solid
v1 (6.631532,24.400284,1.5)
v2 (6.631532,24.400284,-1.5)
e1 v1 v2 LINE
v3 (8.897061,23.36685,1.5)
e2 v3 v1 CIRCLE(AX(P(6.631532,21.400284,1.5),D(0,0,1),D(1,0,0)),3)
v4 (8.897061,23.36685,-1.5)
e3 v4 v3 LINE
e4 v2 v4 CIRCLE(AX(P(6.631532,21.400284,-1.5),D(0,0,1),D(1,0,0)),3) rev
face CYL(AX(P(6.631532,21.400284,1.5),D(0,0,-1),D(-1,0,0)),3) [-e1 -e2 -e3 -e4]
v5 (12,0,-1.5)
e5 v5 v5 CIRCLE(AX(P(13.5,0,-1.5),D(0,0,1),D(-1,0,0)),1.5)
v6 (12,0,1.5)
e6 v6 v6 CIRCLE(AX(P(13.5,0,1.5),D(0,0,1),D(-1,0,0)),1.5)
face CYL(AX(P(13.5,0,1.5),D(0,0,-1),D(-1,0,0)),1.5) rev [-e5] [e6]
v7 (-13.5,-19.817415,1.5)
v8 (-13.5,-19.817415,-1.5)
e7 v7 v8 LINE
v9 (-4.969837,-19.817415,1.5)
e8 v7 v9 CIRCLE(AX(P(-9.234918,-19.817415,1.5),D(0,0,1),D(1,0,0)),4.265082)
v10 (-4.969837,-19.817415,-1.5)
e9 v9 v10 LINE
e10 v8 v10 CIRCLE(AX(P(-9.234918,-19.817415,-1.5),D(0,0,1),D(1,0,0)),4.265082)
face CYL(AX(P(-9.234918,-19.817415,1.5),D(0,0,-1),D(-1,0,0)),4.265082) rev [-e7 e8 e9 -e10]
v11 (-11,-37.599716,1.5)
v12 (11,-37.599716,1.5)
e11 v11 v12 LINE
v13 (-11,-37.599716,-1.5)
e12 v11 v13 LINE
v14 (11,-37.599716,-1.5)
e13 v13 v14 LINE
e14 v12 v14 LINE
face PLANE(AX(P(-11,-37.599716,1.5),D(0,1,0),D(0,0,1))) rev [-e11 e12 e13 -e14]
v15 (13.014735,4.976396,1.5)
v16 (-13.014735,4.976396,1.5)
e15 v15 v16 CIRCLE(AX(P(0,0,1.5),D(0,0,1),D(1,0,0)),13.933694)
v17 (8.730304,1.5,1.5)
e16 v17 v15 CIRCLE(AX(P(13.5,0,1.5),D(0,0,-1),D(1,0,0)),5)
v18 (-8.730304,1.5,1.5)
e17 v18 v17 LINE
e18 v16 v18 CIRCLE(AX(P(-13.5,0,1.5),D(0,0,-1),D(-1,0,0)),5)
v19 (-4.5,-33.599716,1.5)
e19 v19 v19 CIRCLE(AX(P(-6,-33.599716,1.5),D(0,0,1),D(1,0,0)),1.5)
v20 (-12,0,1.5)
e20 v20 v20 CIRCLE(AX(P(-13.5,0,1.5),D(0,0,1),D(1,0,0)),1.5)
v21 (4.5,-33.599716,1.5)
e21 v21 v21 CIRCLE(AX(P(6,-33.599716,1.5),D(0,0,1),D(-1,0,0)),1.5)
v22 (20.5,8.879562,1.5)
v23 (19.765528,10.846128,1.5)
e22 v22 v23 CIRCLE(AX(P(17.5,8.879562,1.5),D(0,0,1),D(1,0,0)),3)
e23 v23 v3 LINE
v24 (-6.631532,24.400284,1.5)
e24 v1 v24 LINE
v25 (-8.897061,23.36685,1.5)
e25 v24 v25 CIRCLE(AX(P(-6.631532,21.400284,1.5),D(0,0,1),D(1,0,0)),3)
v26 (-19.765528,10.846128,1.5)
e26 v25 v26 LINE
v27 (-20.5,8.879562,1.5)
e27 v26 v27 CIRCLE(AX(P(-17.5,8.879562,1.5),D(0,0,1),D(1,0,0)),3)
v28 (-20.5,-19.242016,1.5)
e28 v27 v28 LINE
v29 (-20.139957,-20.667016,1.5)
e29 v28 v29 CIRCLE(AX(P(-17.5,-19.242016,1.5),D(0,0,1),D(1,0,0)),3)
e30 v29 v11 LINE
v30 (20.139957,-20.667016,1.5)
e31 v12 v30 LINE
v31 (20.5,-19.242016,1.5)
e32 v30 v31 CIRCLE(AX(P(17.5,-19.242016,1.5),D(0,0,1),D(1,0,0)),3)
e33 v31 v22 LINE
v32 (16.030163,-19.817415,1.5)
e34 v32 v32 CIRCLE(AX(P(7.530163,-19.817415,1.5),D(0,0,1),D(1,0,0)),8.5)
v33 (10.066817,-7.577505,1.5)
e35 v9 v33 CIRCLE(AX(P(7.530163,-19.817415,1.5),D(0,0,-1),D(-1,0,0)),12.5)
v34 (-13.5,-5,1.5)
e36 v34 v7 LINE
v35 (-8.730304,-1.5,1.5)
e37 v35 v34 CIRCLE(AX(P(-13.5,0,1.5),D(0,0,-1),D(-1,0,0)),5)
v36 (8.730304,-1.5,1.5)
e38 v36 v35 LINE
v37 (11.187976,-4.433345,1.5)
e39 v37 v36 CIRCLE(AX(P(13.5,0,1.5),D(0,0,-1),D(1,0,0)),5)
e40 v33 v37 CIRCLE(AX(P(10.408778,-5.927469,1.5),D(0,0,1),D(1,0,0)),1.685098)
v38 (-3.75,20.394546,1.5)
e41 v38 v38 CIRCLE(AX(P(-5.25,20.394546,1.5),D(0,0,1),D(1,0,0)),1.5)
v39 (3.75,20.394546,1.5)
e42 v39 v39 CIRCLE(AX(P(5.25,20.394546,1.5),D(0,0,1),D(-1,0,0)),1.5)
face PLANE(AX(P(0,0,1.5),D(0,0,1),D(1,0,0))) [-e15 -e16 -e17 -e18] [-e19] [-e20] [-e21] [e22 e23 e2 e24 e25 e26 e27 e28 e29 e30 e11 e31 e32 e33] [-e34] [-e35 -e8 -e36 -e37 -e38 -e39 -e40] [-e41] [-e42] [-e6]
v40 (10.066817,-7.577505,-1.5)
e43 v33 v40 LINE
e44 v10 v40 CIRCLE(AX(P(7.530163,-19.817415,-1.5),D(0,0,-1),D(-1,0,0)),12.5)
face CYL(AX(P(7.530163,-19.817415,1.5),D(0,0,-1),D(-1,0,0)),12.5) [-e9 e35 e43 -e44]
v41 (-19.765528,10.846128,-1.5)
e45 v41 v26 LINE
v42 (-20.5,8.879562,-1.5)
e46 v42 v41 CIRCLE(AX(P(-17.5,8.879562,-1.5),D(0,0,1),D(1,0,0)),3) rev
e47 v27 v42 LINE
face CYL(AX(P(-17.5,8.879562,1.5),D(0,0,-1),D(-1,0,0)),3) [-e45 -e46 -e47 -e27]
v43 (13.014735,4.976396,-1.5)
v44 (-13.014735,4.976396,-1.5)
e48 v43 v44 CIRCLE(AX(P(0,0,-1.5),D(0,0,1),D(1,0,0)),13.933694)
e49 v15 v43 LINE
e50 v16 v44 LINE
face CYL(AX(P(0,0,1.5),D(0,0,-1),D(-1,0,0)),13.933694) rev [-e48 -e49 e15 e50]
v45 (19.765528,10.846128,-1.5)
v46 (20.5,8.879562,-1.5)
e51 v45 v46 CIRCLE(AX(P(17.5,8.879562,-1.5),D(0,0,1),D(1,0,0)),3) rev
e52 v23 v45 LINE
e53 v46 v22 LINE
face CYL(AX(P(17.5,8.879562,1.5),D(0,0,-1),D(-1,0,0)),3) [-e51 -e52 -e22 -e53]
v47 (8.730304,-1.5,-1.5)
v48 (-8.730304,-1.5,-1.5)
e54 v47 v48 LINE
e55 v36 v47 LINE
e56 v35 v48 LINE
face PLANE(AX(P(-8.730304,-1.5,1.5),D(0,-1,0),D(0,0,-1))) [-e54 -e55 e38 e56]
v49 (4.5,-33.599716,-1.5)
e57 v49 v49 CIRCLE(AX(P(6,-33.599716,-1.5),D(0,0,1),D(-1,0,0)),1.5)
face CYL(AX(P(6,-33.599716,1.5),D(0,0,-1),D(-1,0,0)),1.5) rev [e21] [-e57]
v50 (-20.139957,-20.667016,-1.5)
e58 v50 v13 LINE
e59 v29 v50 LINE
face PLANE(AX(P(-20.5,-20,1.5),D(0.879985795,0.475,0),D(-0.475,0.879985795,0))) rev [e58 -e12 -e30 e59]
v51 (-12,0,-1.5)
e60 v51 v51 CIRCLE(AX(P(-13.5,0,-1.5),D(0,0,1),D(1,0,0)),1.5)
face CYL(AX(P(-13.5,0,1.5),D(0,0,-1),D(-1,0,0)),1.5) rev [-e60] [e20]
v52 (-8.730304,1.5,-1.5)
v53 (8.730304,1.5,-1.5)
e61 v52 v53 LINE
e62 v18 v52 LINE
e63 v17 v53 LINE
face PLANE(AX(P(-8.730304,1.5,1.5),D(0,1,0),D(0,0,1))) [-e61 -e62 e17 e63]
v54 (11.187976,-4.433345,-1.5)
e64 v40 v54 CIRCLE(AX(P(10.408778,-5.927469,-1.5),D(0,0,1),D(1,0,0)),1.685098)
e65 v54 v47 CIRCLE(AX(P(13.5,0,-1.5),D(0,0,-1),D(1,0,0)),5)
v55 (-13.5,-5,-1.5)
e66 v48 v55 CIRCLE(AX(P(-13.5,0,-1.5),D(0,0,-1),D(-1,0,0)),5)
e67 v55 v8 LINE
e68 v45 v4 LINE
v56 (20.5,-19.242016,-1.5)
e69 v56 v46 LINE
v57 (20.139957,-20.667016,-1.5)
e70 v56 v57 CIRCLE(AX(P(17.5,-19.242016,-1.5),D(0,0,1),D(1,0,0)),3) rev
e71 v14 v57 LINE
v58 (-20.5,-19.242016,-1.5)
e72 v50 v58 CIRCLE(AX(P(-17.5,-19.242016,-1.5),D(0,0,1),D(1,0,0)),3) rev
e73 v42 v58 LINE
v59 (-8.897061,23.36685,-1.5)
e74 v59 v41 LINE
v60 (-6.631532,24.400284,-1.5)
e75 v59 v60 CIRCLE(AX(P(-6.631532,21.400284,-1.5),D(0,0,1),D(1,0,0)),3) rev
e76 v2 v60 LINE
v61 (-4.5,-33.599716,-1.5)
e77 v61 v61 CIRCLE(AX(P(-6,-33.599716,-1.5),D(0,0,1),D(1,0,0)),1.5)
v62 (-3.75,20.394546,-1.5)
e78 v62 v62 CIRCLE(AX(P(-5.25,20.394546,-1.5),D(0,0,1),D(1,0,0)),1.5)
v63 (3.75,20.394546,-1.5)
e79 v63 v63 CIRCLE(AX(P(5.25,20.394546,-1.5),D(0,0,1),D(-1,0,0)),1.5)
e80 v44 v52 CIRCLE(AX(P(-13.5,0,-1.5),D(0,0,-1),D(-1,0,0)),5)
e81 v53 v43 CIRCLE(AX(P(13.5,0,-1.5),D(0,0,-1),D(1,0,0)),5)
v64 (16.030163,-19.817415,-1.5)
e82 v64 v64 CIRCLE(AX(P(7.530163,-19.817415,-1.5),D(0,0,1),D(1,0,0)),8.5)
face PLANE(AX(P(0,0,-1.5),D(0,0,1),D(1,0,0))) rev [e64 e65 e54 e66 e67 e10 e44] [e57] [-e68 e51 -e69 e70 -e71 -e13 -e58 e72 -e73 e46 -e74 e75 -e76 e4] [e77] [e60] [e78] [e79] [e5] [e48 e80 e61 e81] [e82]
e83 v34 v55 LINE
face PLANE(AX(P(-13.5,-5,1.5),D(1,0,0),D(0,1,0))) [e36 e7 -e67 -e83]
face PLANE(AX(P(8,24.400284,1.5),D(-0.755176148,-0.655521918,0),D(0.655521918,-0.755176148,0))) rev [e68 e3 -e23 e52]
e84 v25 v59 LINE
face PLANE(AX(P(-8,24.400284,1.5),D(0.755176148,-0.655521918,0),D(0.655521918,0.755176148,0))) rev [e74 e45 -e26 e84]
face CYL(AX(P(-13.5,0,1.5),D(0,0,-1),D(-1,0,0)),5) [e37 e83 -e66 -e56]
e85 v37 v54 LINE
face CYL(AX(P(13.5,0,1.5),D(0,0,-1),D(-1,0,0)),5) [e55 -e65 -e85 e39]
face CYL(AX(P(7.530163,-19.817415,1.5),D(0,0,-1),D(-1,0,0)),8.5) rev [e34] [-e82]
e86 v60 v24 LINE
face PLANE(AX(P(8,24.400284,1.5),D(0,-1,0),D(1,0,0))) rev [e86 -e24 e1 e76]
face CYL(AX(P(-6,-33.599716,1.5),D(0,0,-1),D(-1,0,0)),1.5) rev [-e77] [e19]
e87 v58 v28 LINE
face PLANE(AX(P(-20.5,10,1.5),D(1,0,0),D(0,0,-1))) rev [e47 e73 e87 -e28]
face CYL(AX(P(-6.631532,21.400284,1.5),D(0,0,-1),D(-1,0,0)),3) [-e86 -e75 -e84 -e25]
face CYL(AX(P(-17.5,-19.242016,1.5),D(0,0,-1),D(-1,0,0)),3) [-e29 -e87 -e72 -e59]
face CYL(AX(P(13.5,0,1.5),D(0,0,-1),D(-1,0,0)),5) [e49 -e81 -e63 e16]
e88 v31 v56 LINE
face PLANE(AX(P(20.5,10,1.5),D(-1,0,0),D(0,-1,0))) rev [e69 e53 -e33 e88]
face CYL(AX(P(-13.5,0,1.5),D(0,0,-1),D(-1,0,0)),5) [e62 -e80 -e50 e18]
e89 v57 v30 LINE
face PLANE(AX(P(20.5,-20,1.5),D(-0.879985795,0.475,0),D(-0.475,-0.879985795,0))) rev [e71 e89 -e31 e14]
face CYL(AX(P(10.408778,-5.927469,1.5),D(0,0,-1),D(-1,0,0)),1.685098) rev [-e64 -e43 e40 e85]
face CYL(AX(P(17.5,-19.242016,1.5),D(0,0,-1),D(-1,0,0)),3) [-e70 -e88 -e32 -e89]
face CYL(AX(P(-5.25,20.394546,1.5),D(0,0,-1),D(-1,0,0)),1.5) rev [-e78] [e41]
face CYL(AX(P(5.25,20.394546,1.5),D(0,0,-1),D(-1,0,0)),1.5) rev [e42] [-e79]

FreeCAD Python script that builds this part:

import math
import FreeCAD as App
import Part
import Sketcher

V = App.Vector
Q = App.Units.Quantity


def edges_at(feature, points):
    """Names of the edges that pass closest to the given points."""
    edges = feature.Shape.Edges
    near = lambda p: min(range(len(edges)), key=lambda i: edges[i].distToShape(Part.Vertex(*p))[0])
    return sorted({f"Edge{near(p) + 1}" for p in points})

doc = App.newDocument("Part")
body = doc.addObject("PartDesign::Body", "Body")

sketch1 = doc.addObject("Sketcher::SketchObject", "Sketch")
body.addObject(sketch1)
sketch1.AttachmentSupport = (doc.XY_Plane, [""])
sketch1.MapMode = "FlatFace"
sketch1.addGeometry([
    Part.LineSegment(V(8, 24.4, 0), V(-8, 24.4, 0)),
    Part.LineSegment(V(-8, 24.4, 0), V(-20.5, 10, 0)),
    Part.LineSegment(V(-20.5, 10, 0), V(-20.5, -20, 0)),
    Part.LineSegment(V(-20.5, -20, 0), V(-11, -37.6, 0)),
    Part.LineSegment(V(-11, -37.6, 0), V(11, -37.6, 0)),
    Part.LineSegment(V(11, -37.6, 0), V(20.5, -20, 0)),
    Part.LineSegment(V(20.5, -20, 0), V(20.5, 10, 0)),
    Part.LineSegment(V(20.5, 10, 0), V(8, 24.4, 0)),
    Part.Circle(V(-6, -33.6, 0), V(0, 0, 1), 1.5),
    Part.LineSegment(V(-13.5, -19.8, 0), V(-13.5, -5, 0)),
    Part.ArcOfCircle(Part.Circle(V(-13.5, 0, 0), V(0, 0, 1), 5), math.radians(-90), math.radians(-17)),
    Part.LineSegment(V(-8.7, -1.5, 0), V(8.7, -1.5, 0)),
    Part.ArcOfCircle(Part.Circle(V(13.5, 0, 0), V(0, 0, 1), 5), math.radians(-163), math.radians(-118)),
    Part.ArcOfCircle(Part.Circle(V(10.4, -5.9, 0), V(0, 0, 1), 1.7), math.radians(-102), math.radians(62)),
    Part.ArcOfCircle(Part.Circle(V(7.5, -19.8, 0), V(0, 0, 1), 12.5), math.radians(78), math.radians(180)),
    Part.ArcOfCircle(Part.Circle(V(-9.2, -19.8, 0), V(0, 0, 1), 4.3), math.radians(180), math.radians(360)),
    Part.Circle(V(6, -33.6, 0), V(0, 0, 1), 1.5),
    Part.Circle(V(7.5, -19.8, 0), V(0, 0, 1), 8.5),
    Part.Circle(V(-13.5, 0, 0), V(0, 0, 1), 1.5),
    Part.LineSegment(V(8.7, 1.5, 0), V(-8.7, 1.5, 0)),
    Part.ArcOfCircle(Part.Circle(V(-13.5, 0, 0), V(0, 0, 1), 5), math.radians(17), math.radians(84)),
    Part.ArcOfCircle(Part.Circle(V(0, 0, 0), V(0, 0, 1), 13.9), math.radians(21), math.radians(159)),
    Part.ArcOfCircle(Part.Circle(V(13.5, 0, 0), V(0, 0, 1), 5), math.radians(96), math.radians(163)),
    Part.Circle(V(-5.2, 20.4, 0), V(0, 0, 1), 1.5),
    Part.Circle(V(13.5, 0, 0), V(0, 0, 1), 1.5),
    Part.Circle(V(5.2, 20.4, 0), V(0, 0, 1), 1.5),
], False)
sketch1.addConstraint([
    Sketcher.Constraint("Coincident", 0, 2, 1, 1),
    Sketcher.Constraint("Coincident", 1, 2, 2, 1),
    Sketcher.Constraint("Coincident", 2, 2, 3, 1),
    Sketcher.Constraint("Coincident", 3, 2, 4, 1),
    Sketcher.Constraint("Coincident", 4, 2, 5, 1),
    Sketcher.Constraint("Coincident", 5, 2, 6, 1),
    Sketcher.Constraint("Coincident", 6, 2, 7, 1),
    Sketcher.Constraint("Coincident", 7, 2, 0, 1),
    Sketcher.Constraint("Coincident", 9, 2, 10, 1),
    Sketcher.Constraint("Coincident", 10, 2, 11, 1),
    Sketcher.Constraint("Coincident", 11, 2, 12, 1),
    Sketcher.Constraint("Tangent", 12, 2, 13, 2),
    Sketcher.Constraint("Tangent", 13, 1, 14, 1),
    Sketcher.Constraint("Tangent", 14, 2, 15, 2),
    Sketcher.Constraint("Tangent", 15, 1, 9, 1),
    Sketcher.Constraint("Coincident", 19, 2, 20, 1),
    Sketcher.Constraint("Coincident", 20, 2, 21, 2),
    Sketcher.Constraint("Coincident", 21, 1, 22, 1),
    Sketcher.Constraint("Coincident", 22, 2, 19, 1),
    Sketcher.Constraint("Horizontal", 0),
    Sketcher.Constraint("Vertical", 2),
    Sketcher.Constraint("Horizontal", 4),
    Sketcher.Constraint("Vertical", 6),
    Sketcher.Constraint("Vertical", 9),
    Sketcher.Constraint("Horizontal", 11),
    Sketcher.Constraint("Horizontal", 19),
    Sketcher.Constraint("Coincident", 21, 3, -1, 1),
    Sketcher.Constraint("Coincident", 17, 3, 14, 3),
    Sketcher.Constraint("Coincident", 18, 3, 10, 3),
    Sketcher.Constraint("Coincident", 20, 3, 10, 3),
    Sketcher.Constraint("Coincident", 22, 3, 12, 3),
    Sketcher.Constraint("Coincident", 24, 3, 12, 3),
    Sketcher.Constraint("Equal", 10, 12),
    Sketcher.Constraint("Equal", 8, 16),
    Sketcher.Constraint("Equal", 16, 18),
    Sketcher.Constraint("Equal", 12, 20),
    Sketcher.Constraint("Equal", 20, 22),
    Sketcher.Constraint("Equal", 18, 23),
    Sketcher.Constraint("Equal", 23, 24),
    Sketcher.Constraint("Equal", 24, 25),
    Sketcher.Constraint("Symmetric", 10, 3, 12, 3, -1, 1),
    Sketcher.Constraint("Symmetric", 8, 3, 16, 3, -2),
    Sketcher.Constraint("Symmetric", 23, 3, 25, 3, -2),
    Sketcher.Constraint("Symmetric", 2, 2, 5, 2, -2),
    Sketcher.Constraint("Symmetric", 10, 2, 19, 2, -1),
    Sketcher.Constraint("Horizontal", 14, 3, 15, 3),
    Sketcher.Constraint("Horizontal", 1, 2, 6, 2),
    Sketcher.Constraint("Vertical", 20, 3, 9, 2),
    Sketcher.Constraint("Equal", 3, 5),
    Sketcher.Constraint("Equal", 1, 7),
    Sketcher.Constraint("Diameter", 8, Q("3 mm")),
    Sketcher.Constraint("Diameter", 17, Q("17 mm")),
    Sketcher.Constraint("Radius", 10, Q("5 mm")),
    Sketcher.Constraint("Radius", 14, Q("12.5 mm")),
    Sketcher.Constraint("DistanceX", 0, 2, 0, 1, Q("16 mm")),
    Sketcher.Constraint("DistanceX", 4, 1, 4, 2, Q("22 mm")),
    Sketcher.Constraint("DistanceY", 2, 2, 2, 1, Q("30 mm")),
    Sketcher.Constraint("Distance", 3, Q("20 mm")),
    Sketcher.Constraint("DistanceX", 8, 3, -1, 1, Q("6 mm")),
    Sketcher.Constraint("DistanceY", -1, 1, 1, 2, Q("10 mm")),
    Sketcher.Constraint("DistanceX", 10, 3, 12, 3, Q("27 mm")),
    Sketcher.Constraint("DistanceX", 1, 2, 18, 3, Q("7 mm")),
    Sketcher.Constraint("DistanceY", 3, 2, 8, 3, Q("4 mm")),
    Sketcher.Constraint("DistanceY", 10, 2, 19, 2, Q("3 mm")),
    Sketcher.Constraint("Radius", 13, Q("1.685098 mm")),
    Sketcher.Constraint("DistanceX", 23, 3, 25, 3, Q("10.5 mm")),
    Sketcher.Constraint("Radius", 15, Q("4.265082 mm")),
    Sketcher.Constraint("Radius", 21, Q("13.933694 mm")),
    Sketcher.Constraint("DistanceY", 8, 3, 14, 3, Q("13.782301 mm")),
    Sketcher.Constraint("DistanceY", 23, 3, 0, 2, Q("4.005738 mm")),
    Sketcher.Constraint("Distance", 1, Q("19.068775 mm")),
])
pad1 = doc.addObject("PartDesign::Pad", "Pad")
body.addObject(pad1)
pad1.Profile = sketch1
pad1.Length = 3
pad1.Midplane = True
doc.recompute()

fillet = doc.addObject("PartDesign::Fillet", "Fillet")
body.addObject(fillet)
fillet.Base = (pad1, edges_at(pad1, [
    (-20.5, -20, 0),
    (-20.5, 10, 0),
    (-8, 24.4, 0),
    (8, 24.4, 0),
    (20.5, 10, 0),
    (20.5, -20, 0),
]))
fillet.Radius = 3

doc.recompute()
